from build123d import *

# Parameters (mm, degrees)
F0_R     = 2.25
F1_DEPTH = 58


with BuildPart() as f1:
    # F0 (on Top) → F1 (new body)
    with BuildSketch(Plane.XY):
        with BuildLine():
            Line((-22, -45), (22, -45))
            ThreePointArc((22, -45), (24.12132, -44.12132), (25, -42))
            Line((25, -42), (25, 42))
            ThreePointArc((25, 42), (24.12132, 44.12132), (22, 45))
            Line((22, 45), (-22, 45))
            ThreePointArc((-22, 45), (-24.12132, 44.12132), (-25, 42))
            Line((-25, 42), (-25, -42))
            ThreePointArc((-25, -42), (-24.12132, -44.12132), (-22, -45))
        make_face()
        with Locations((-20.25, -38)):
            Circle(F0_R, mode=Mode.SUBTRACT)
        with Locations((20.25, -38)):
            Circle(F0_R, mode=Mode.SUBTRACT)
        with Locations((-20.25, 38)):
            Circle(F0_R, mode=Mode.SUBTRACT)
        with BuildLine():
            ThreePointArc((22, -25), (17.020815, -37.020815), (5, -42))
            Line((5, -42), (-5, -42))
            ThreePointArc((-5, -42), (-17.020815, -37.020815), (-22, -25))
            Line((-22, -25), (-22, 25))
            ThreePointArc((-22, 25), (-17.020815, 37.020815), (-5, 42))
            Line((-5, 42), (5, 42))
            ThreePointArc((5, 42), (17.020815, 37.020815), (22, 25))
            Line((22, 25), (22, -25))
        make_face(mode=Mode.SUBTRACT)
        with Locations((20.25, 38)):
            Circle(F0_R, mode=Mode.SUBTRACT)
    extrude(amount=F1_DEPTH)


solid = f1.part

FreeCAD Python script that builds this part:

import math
import FreeCAD as App
import Part
import Sketcher
Q = App.Units.Quantity

doc = App.newDocument("Part")
body = doc.addObject("PartDesign::Body", "Body")

sketch1 = body.newObject("Sketcher::SketchObject", "Sketch")
sketch1.AttachmentSupport = (doc.getObject("XY_Plane"), [""])
sketch1.MapMode = "FlatFace"
sketch1.addGeometry([
    Part.LineSegment(App.Vector(-22, -45, 0), App.Vector(22, -45, 0)),
    Part.ArcOfCircle(Part.Circle(App.Vector(22, -42, 0), App.Vector(0, 0, 1), 3), math.radians(-90), math.radians(0)),
    Part.LineSegment(App.Vector(25, -42, 0), App.Vector(25, 42, 0)),
    Part.ArcOfCircle(Part.Circle(App.Vector(22, 42, 0), App.Vector(0, 0, 1), 3), math.radians(0), math.radians(90)),
    Part.LineSegment(App.Vector(22, 45, 0), App.Vector(-22, 45, 0)),
    Part.ArcOfCircle(Part.Circle(App.Vector(-22, 42, 0), App.Vector(0, 0, 1), 3), math.radians(90), math.radians(180)),
    Part.LineSegment(App.Vector(-25, 42, 0), App.Vector(-25, -42, 0)),
    Part.ArcOfCircle(Part.Circle(App.Vector(-22, -42, 0), App.Vector(0, 0, 1), 3), math.radians(-180), math.radians(-90)),
    Part.Circle(App.Vector(-20.2, -38, 0), App.Vector(0, 0, 1), 2.2),
    Part.Circle(App.Vector(20.2, -38, 0), App.Vector(0, 0, 1), 2.2),
    Part.Circle(App.Vector(-20.2, 38, 0), App.Vector(0, 0, 1), 2.2),
    Part.LineSegment(App.Vector(22, 25, 0), App.Vector(22, -25, 0)),
    Part.ArcOfCircle(Part.Circle(App.Vector(5, -25, 0), App.Vector(0, 0, 1), 17), math.radians(-90), math.radians(0)),
    Part.LineSegment(App.Vector(5, -42, 0), App.Vector(-5, -42, 0)),
    Part.ArcOfCircle(Part.Circle(App.Vector(-5, -25, 0), App.Vector(0, 0, 1), 17), math.radians(-180), math.radians(-90)),
    Part.LineSegment(App.Vector(-22, -25, 0), App.Vector(-22, 25, 0)),
    Part.ArcOfCircle(Part.Circle(App.Vector(-5, 25, 0), App.Vector(0, 0, 1), 17), math.radians(90), math.radians(180)),
    Part.LineSegment(App.Vector(-5, 42, 0), App.Vector(5, 42, 0)),
    Part.ArcOfCircle(Part.Circle(App.Vector(5, 25, 0), App.Vector(0, 0, 1), 17), math.radians(0), math.radians(90)),
    Part.Circle(App.Vector(20.2, 38, 0), App.Vector(0, 0, 1), 2.2),
], False)
sketch1.addConstraint([
    Sketcher.Constraint("Tangent", 0, 2, 1, 1),
    Sketcher.Constraint("Tangent", 1, 2, 2, 1),
    Sketcher.Constraint("Tangent", 2, 2, 3, 1),
    Sketcher.Constraint("Tangent", 3, 2, 4, 1),
    Sketcher.Constraint("Tangent", 4, 2, 5, 1),
    Sketcher.Constraint("Tangent", 5, 2, 6, 1),
    Sketcher.Constraint("Tangent", 6, 2, 7, 1),
    Sketcher.Constraint("Tangent", 7, 2, 0, 1),
    Sketcher.Constraint("Tangent", 11, 2, 12, 2),
    Sketcher.Constraint("Tangent", 12, 1, 13, 1),
    Sketcher.Constraint("Tangent", 13, 2, 14, 2),
    Sketcher.Constraint("Tangent", 14, 1, 15, 1),
    Sketcher.Constraint("Tangent", 15, 2, 16, 2),
    Sketcher.Constraint("Tangent", 16, 1, 17, 1),
    Sketcher.Constraint("Tangent", 17, 2, 18, 2),
    Sketcher.Constraint("Tangent", 18, 1, 11, 1),
    Sketcher.Constraint("Horizontal", 0),
    Sketcher.Constraint("Vertical", 2),
    Sketcher.Constraint("Horizontal", 4),
    Sketcher.Constraint("Vertical", 6),
    Sketcher.Constraint("Vertical", 11),
    Sketcher.Constraint("Horizontal", 13),
    Sketcher.Constraint("Vertical", 15),
    Sketcher.Constraint("Horizontal", 17),
    Sketcher.Constraint("Equal", 1, 3),
    Sketcher.Constraint("Equal", 3, 5),
    Sketcher.Constraint("Equal", 5, 7),
    Sketcher.Constraint("Equal", 8, 9),
    Sketcher.Constraint("Equal", 9, 10),
    Sketcher.Constraint("Equal", 12, 14),
    Sketcher.Constraint("Equal", 14, 16),
    Sketcher.Constraint("Equal", 16, 18),
    Sketcher.Constraint("Equal", 10, 19),
    Sketcher.Constraint("Symmetric", 1, 3, 5, 3, -1, 1),
    Sketcher.Constraint("Symmetric", 9, 3, 10, 3, -1, 1),
    Sketcher.Constraint("Symmetric", 12, 3, 16, 3, -1, 1),
    Sketcher.Constraint("Symmetric", 8, 3, 19, 3, -1, 1),
    Sketcher.Constraint("Symmetric", 8, 3, 9, 3, -2),
    Sketcher.Constraint("Horizontal", 6, 2, 12, 1),
    Sketcher.Constraint("Vertical", 3, 2, 11, 2),
    Sketcher.Constraint("Radius", 1, Q("3.000001 mm")),
    Sketcher.Constraint("Radius", 12, Q("17.000001 mm")),
    Sketcher.Constraint("Diameter", 8, Q("4.5 mm")),
    Sketcher.Constraint("DistanceX", 0, 1, 0, 2, Q("44 mm")),
    Sketcher.Constraint("DistanceY", 2, 1, 2, 2, Q("84 mm")),
    Sketcher.Constraint("DistanceY", 8, 3, -1, 1, Q("38 mm")),
    Sketcher.Constraint("DistanceX", 8, 3, 9, 3, Q("40.5 mm")),
])
pad1 = body.newObject("PartDesign::Pad", "Pad")
pad1.Profile = sketch1
pad1.Length = 58

doc.recompute()
